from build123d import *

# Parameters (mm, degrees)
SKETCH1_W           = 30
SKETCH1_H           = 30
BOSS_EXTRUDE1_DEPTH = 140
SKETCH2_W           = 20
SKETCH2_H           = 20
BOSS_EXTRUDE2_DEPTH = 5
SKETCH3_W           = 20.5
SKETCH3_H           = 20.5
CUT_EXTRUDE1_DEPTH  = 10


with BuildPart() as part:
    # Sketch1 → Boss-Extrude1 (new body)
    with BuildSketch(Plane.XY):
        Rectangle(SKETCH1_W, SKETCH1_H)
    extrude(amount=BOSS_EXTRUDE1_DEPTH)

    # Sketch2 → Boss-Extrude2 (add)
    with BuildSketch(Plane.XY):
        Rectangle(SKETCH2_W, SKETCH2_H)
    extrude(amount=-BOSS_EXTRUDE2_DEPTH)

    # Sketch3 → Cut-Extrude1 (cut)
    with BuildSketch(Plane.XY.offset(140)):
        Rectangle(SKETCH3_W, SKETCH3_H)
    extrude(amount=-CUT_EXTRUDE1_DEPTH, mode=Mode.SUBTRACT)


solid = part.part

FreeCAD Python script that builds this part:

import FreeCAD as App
import Part
import Sketcher

V = App.Vector
Q = App.Units.Quantity


def add_polygon(sketch, points):
    """Adds a closed chain of lines whose ends are joined by coincident constraints."""
    first, n = sketch.GeometryCount, len(points)
    for a, b in zip(points, points[1:] + points[:1]):
        sketch.addGeometry(Part.LineSegment(App.Vector(*a, 0), App.Vector(*b, 0)), False)
    for i in range(n):
        sketch.addConstraint(Sketcher.Constraint("Coincident", first + i, 2, first + (i + 1) % n, 1))

doc = App.newDocument("Part")
body = doc.addObject("PartDesign::Body", "Body")

sketch1 = body.newObject("Sketcher::SketchObject", "Sketch")
sketch1.AttachmentSupport = (doc.getObject("XY_Plane"), [""])
sketch1.MapMode = "FlatFace"
add_polygon(sketch1, [(-15, 15), (-15, -15), (15, -15), (15, 15)])
sketch1.addConstraint([
    Sketcher.Constraint("Vertical", 0),
    Sketcher.Constraint("Horizontal", 1),
    Sketcher.Constraint("Vertical", 2),
    Sketcher.Constraint("Horizontal", 3),
    Sketcher.Constraint("Symmetric", 0, 2, 2, 2, -1, 1),
    Sketcher.Constraint("Equal", 3, 0),
    Sketcher.Constraint("DistanceX", 1, 1, 1, 2, Q("30 mm")),
])
pad1 = body.newObject("PartDesign::Pad", "Pad")
pad1.Profile = sketch1
pad1.Length = 140

sketch2 = body.newObject("Sketcher::SketchObject", "Sketch001")
sketch2.AttachmentSupport = (doc.getObject("XY_Plane"), [""])
sketch2.MapMode = "FlatFace"
add_polygon(sketch2, [(-10, 10), (-10, -10), (10, -10), (10, 10)])
sketch2.addConstraint([
    Sketcher.Constraint("Vertical", 0),
    Sketcher.Constraint("Horizontal", 1),
    Sketcher.Constraint("Vertical", 2),
    Sketcher.Constraint("Horizontal", 3),
    Sketcher.Constraint("Symmetric", 0, 2, 2, 2, -1, 1),
    Sketcher.Constraint("Equal", 3, 0),
    Sketcher.Constraint("DistanceX", 1, 1, 1, 2, Q("20 mm")),
])
pad2 = body.newObject("PartDesign::Pad", "Pad001")
pad2.Profile = sketch2
pad2.Length = 5
pad2.Reversed = True

sketch3 = body.newObject("Sketcher::SketchObject", "Sketch002")
sketch3.AttachmentSupport = (doc.getObject("XY_Plane"), [""])
sketch3.MapMode = "FlatFace"
sketch3.AttachmentOffset = App.Placement(V(0, 0, 140), App.Rotation())
add_polygon(sketch3, [(-10, 10), (-10, -10), (10, -10), (10, 10)])
sketch3.addConstraint([
    Sketcher.Constraint("Vertical", 0),
    Sketcher.Constraint("Horizontal", 1),
    Sketcher.Constraint("Vertical", 2),
    Sketcher.Constraint("Horizontal", 3),
    Sketcher.Constraint("Symmetric", 0, 2, 2, 2, -1, 1),
    Sketcher.Constraint("Equal", 3, 0),
    Sketcher.Constraint("DistanceX", 1, 1, 1, 2, Q("20.5 mm")),
])
pocket1 = body.newObject("PartDesign::Pocket", "Pocket")
pocket1.Profile = sketch3
pocket1.Length = 10

doc.recompute()
